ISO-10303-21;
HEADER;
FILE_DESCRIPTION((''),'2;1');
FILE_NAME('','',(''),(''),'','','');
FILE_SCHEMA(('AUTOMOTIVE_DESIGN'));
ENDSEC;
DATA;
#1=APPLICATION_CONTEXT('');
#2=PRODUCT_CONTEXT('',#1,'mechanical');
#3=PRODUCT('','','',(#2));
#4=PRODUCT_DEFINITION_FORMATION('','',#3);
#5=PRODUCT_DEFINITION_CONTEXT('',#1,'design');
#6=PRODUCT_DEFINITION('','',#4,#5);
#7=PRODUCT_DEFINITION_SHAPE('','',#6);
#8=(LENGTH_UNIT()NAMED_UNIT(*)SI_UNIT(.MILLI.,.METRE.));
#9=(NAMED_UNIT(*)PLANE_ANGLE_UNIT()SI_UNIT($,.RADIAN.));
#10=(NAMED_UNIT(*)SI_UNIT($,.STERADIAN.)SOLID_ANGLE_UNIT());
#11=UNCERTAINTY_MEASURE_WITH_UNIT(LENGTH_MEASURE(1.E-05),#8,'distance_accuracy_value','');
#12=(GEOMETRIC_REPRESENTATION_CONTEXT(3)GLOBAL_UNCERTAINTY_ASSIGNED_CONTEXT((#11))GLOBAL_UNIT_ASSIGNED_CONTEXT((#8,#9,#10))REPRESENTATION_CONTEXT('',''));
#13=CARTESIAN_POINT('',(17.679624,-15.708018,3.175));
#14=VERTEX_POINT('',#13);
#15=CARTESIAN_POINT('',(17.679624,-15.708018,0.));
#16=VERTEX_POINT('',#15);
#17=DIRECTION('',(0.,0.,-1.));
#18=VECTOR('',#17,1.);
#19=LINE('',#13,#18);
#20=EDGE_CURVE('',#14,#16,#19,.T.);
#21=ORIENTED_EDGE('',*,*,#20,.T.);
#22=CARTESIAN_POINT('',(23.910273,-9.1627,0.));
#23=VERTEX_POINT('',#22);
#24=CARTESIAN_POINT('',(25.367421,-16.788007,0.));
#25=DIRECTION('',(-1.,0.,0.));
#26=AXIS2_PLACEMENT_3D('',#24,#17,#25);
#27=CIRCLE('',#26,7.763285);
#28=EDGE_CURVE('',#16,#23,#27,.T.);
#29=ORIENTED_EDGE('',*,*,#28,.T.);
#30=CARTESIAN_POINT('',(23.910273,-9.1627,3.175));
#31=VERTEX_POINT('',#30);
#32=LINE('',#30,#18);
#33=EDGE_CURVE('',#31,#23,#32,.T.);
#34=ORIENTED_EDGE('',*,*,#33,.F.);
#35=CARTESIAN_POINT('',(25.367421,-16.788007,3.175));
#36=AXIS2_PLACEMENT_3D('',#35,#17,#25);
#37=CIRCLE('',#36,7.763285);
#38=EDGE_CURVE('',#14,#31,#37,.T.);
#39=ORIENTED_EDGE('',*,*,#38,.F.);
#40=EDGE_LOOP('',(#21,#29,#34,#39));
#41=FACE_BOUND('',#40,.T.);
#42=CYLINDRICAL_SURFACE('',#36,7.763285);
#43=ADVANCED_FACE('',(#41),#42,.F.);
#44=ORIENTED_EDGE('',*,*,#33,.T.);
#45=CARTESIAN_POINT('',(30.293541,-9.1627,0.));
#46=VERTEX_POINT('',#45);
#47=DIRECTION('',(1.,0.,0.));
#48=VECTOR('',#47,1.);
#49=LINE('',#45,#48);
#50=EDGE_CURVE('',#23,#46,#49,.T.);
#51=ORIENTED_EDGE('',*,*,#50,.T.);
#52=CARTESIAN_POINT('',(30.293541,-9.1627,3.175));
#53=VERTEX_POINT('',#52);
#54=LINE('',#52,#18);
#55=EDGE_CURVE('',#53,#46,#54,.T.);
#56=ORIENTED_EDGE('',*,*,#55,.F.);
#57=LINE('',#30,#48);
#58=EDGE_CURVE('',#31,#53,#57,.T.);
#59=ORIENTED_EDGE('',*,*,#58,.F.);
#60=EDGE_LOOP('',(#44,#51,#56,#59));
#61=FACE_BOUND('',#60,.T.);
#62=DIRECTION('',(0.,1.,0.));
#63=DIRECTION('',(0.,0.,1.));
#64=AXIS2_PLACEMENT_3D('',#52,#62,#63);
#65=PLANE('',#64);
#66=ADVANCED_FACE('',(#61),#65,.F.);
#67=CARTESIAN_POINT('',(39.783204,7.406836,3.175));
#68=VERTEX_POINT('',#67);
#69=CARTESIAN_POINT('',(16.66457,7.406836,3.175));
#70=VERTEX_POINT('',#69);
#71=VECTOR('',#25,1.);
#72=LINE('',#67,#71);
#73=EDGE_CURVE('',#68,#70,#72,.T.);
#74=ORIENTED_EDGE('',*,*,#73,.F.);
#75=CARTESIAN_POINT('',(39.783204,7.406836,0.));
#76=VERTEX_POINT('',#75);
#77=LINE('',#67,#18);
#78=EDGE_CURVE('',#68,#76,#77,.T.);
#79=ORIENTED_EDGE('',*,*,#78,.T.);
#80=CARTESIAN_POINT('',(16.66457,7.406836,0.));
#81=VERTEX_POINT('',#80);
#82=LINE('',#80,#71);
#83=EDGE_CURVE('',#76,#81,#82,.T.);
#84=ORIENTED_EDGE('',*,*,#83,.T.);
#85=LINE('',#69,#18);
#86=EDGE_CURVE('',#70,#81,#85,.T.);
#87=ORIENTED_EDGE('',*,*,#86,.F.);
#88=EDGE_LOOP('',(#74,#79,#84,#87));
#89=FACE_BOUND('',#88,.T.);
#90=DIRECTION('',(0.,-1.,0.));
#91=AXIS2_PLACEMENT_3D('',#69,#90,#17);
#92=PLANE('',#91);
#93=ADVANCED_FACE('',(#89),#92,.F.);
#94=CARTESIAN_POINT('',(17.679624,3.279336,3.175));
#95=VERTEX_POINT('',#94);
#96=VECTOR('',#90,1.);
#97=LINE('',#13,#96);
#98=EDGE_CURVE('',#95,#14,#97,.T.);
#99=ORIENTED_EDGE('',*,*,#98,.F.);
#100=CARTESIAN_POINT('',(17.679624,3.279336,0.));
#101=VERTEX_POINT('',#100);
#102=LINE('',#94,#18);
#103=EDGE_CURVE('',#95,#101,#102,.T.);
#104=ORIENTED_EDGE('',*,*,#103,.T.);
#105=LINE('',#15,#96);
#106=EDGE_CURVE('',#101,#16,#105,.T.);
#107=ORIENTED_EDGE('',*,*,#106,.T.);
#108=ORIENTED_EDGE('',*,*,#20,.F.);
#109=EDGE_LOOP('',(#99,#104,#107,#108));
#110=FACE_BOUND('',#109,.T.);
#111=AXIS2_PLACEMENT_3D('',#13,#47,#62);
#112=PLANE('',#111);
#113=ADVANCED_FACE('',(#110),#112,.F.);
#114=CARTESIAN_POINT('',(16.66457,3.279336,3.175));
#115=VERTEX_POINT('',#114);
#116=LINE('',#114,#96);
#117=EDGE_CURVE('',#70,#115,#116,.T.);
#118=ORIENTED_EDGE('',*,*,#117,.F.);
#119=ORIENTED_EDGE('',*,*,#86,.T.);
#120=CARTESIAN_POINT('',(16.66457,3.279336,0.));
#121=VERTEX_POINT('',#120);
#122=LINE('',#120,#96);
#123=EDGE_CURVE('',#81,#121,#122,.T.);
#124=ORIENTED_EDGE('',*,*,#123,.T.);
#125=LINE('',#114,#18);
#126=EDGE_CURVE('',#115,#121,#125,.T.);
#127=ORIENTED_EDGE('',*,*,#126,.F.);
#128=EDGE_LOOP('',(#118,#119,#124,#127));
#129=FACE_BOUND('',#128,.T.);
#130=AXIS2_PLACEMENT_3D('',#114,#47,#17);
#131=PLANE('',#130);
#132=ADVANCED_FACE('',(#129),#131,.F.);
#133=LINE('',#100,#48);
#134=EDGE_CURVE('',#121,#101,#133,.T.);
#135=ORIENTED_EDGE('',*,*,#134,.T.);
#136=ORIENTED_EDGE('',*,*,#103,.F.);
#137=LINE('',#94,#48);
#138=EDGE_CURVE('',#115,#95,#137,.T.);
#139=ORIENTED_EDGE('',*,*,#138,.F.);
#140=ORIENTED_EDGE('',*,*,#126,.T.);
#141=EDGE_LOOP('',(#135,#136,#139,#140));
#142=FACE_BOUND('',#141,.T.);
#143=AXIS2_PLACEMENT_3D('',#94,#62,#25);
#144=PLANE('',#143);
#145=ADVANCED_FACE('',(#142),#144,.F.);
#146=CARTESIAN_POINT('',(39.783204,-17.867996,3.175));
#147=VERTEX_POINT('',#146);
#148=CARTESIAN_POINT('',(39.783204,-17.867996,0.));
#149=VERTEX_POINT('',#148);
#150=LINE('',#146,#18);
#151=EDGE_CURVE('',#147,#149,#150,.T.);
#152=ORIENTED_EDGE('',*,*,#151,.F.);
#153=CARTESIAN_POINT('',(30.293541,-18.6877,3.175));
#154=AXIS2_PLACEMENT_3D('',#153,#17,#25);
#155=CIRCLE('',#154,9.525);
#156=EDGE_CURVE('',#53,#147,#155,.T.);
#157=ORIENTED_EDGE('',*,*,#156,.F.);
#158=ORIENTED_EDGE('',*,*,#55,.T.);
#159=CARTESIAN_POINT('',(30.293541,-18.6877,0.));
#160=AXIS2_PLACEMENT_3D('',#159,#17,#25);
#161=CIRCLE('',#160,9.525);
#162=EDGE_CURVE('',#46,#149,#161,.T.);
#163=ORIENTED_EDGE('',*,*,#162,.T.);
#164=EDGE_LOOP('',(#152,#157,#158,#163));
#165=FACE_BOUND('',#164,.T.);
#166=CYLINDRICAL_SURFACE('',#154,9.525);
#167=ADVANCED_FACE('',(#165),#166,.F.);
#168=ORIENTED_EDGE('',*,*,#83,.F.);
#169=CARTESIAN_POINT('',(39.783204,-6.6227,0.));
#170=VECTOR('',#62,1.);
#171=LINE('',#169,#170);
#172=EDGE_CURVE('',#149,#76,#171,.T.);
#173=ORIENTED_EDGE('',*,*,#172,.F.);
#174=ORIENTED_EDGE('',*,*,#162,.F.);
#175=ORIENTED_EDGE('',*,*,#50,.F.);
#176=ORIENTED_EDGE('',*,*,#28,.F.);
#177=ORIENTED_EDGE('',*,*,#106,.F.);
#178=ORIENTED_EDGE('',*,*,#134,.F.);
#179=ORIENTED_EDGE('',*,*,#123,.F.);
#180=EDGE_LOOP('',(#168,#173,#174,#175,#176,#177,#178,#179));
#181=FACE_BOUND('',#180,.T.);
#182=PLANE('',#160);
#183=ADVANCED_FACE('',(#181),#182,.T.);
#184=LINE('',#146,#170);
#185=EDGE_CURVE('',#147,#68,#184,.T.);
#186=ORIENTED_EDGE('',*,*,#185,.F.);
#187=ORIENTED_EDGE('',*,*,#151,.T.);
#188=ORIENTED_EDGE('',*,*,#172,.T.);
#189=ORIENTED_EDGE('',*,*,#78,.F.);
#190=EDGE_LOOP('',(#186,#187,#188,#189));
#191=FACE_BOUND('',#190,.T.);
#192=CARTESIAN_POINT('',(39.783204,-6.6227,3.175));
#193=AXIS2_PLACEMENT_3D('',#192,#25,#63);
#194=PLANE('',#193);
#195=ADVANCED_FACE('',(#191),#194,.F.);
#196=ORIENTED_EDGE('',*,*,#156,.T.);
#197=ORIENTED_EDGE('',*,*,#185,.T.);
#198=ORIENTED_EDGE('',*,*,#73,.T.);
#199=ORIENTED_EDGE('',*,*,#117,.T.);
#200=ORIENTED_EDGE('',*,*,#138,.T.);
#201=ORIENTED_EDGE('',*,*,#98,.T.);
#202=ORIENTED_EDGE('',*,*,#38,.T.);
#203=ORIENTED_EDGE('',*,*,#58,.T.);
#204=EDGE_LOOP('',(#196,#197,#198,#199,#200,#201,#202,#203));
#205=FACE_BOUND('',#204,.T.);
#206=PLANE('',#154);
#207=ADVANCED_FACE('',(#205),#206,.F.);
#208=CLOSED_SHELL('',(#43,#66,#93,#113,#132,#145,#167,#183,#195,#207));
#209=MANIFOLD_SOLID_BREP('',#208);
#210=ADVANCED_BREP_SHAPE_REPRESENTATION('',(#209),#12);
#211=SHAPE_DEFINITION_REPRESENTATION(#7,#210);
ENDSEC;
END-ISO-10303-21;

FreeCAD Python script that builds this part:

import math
import FreeCAD as App
import Part
import Sketcher
Q = App.Units.Quantity

doc = App.newDocument("Part")
body = doc.addObject("PartDesign::Body", "Body")

# Sketch on XY plane
sketch1 = doc.addObject("Sketcher::SketchObject", "Sketch")
body.addObject(sketch1)
sketch1.AttachmentSupport = (doc.XY_Plane, [""])
sketch1.MapMode = "FlatFace"
sketch1.addGeometry([
    Part.LineSegment(App.Vector(23.910273, -9.1627, 0), App.Vector(30.293541, -9.1627, 0)),  # 0
    Part.ArcOfCircle(Part.Circle(App.Vector(30.293541, -18.6877, 0), App.Vector(0, 0, 1), 9.525), math.radians(4.936874), math.radians(90)),  # 1
    Part.LineSegment(App.Vector(39.783204, -17.867996, 0), App.Vector(39.783204, 7.406836, 0)),  # 2
    Part.LineSegment(App.Vector(39.783204, 7.406836, 0), App.Vector(16.66457, 7.406836, 0)),  # 3
    Part.LineSegment(App.Vector(16.66457, 7.406836, 0), App.Vector(16.66457, 3.279336, 0)),  # 4
    Part.LineSegment(App.Vector(16.66457, 3.279336, 0), App.Vector(17.679624, 3.279336, 0)),  # 5
    Part.LineSegment(App.Vector(17.679624, 3.279336, 0), App.Vector(17.679624, -15.708018, 0)),  # 6
    Part.ArcOfCircle(Part.Circle(App.Vector(25.367421, -16.788007, 0), App.Vector(0, 0, 1), 7.763285), math.radians(100.818436), math.radians(172.003367)),  # 7
], False)
sketch1.addConstraint([
    Sketcher.Constraint("Tangent", 0, 2, 1, 2),
    Sketcher.Constraint("Coincident", 1, 1, 2, 1),
    Sketcher.Constraint("Coincident", 2, 2, 3, 1),
    Sketcher.Constraint("Coincident", 3, 2, 4, 1),
    Sketcher.Constraint("Coincident", 4, 2, 5, 1),
    Sketcher.Constraint("Coincident", 5, 2, 6, 1),
    Sketcher.Constraint("Coincident", 6, 2, 7, 2),
    Sketcher.Constraint("Coincident", 7, 1, 0, 1),
    Sketcher.Constraint("Horizontal", 0),
    Sketcher.Constraint("Vertical", 2),
    Sketcher.Constraint("Horizontal", 3),
    Sketcher.Constraint("Vertical", 4),
    Sketcher.Constraint("Horizontal", 5),
    Sketcher.Constraint("Vertical", 6),
    Sketcher.Constraint("Radius", 1, Q("0.375 in")),
    Sketcher.Constraint("DistanceY", 4, 2, 4, 1, Q("0.1625 in")),
    Sketcher.Constraint("Radius", 7, 7.763285),
    Sketcher.Constraint("DistanceY", 2, 1, 2, 2, 25.274832),
    Sketcher.Constraint("DistanceY", 1, 3, -1, 1, 18.6877),
    Sketcher.Constraint("DistanceX", 0, 1, 0, 2, 6.383268),
    Sketcher.Constraint("DistanceX", 3, 2, 3, 1, 23.118635),
    Sketcher.Constraint("DistanceX", 5, 1, 5, 2, 1.015055),
    Sketcher.Constraint("DistanceY", 6, 2, 6, 1, 18.987354),
    Sketcher.Constraint("DistanceX", -1, 1, 1, 3, 30.293541),
    Sketcher.Constraint("DistanceX", -1, 1, 7, 3, 25.367421),
])
pad1 = doc.addObject("PartDesign::Pad", "Pad")
body.addObject(pad1)
pad1.Profile = sketch1
pad1.Length = Q("0.125 in")

doc.recompute()
